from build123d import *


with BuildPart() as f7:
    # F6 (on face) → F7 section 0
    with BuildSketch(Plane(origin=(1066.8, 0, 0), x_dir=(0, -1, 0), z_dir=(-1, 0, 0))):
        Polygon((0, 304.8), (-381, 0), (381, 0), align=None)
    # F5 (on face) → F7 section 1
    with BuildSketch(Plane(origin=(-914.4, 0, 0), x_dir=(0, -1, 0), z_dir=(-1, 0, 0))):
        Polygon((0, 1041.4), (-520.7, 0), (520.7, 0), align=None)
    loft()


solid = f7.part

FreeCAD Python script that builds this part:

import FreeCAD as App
import Part
import Sketcher
Q = App.Units.Quantity


def add_polygon(sketch, points):
    """Adds a closed chain of lines whose ends are joined by coincident constraints."""
    first, n = sketch.GeometryCount, len(points)
    for a, b in zip(points, points[1:] + points[:1]):
        sketch.addGeometry(Part.LineSegment(App.Vector(*a, 0), App.Vector(*b, 0)), False)
    for i in range(n):
        sketch.addConstraint(Sketcher.Constraint("Coincident", first + i, 2, first + (i + 1) % n, 1))

doc = App.newDocument("Part")
body = doc.addObject("PartDesign::Body", "Body")

sketch1 = body.newObject("Sketcher::SketchObject", "Sketch")
sketch1.AttachmentSupport = (doc.getObject("YZ_Plane"), [""])
sketch1.MapMode = "FlatFace"
sketch1.AttachmentOffset = App.Placement(App.Vector(0, 0, 42 * 25.4), App.Rotation())
add_polygon(sketch1, [(0, 305), (381, 0), (-381, 0)])
sketch1.addConstraint([
    Sketcher.Constraint("Horizontal", 1),
    Sketcher.Constraint("Symmetric", 0, 2, 1, 2, -1, 1),
    Sketcher.Constraint("PointOnObject", 2, 2, -2),
    Sketcher.Constraint("DistanceX", 1, 2, 1, 1, Q("30 in")),
    Sketcher.Constraint("DistanceY", -1, 1, 2, 2, Q("12 in")),
])

sketch2 = body.newObject("Sketcher::SketchObject", "Sketch001")
sketch2.AttachmentSupport = (doc.getObject("YZ_Plane"), [""])
sketch2.MapMode = "FlatFace"
sketch2.AttachmentOffset = App.Placement(App.Vector(0, 0, -36 * 25.4), App.Rotation())
add_polygon(sketch2, [(0, 1041), (521, 0), (-521, 0)])
sketch2.addConstraint([
    Sketcher.Constraint("Horizontal", 1),
    Sketcher.Constraint("Symmetric", 0, 2, 1, 2, -1, 1),
    Sketcher.Constraint("PointOnObject", 2, 2, -2),
    Sketcher.Constraint("DistanceX", 1, 2, 1, 1, Q("41 in")),
    Sketcher.Constraint("DistanceY", -1, 1, 2, 2, Q("41 in")),
])

additiveloft = body.newObject("PartDesign::AdditiveLoft", "AdditiveLoft")
additiveloft.Profile = sketch1
additiveloft.Sections = [sketch2]

doc.recompute()
